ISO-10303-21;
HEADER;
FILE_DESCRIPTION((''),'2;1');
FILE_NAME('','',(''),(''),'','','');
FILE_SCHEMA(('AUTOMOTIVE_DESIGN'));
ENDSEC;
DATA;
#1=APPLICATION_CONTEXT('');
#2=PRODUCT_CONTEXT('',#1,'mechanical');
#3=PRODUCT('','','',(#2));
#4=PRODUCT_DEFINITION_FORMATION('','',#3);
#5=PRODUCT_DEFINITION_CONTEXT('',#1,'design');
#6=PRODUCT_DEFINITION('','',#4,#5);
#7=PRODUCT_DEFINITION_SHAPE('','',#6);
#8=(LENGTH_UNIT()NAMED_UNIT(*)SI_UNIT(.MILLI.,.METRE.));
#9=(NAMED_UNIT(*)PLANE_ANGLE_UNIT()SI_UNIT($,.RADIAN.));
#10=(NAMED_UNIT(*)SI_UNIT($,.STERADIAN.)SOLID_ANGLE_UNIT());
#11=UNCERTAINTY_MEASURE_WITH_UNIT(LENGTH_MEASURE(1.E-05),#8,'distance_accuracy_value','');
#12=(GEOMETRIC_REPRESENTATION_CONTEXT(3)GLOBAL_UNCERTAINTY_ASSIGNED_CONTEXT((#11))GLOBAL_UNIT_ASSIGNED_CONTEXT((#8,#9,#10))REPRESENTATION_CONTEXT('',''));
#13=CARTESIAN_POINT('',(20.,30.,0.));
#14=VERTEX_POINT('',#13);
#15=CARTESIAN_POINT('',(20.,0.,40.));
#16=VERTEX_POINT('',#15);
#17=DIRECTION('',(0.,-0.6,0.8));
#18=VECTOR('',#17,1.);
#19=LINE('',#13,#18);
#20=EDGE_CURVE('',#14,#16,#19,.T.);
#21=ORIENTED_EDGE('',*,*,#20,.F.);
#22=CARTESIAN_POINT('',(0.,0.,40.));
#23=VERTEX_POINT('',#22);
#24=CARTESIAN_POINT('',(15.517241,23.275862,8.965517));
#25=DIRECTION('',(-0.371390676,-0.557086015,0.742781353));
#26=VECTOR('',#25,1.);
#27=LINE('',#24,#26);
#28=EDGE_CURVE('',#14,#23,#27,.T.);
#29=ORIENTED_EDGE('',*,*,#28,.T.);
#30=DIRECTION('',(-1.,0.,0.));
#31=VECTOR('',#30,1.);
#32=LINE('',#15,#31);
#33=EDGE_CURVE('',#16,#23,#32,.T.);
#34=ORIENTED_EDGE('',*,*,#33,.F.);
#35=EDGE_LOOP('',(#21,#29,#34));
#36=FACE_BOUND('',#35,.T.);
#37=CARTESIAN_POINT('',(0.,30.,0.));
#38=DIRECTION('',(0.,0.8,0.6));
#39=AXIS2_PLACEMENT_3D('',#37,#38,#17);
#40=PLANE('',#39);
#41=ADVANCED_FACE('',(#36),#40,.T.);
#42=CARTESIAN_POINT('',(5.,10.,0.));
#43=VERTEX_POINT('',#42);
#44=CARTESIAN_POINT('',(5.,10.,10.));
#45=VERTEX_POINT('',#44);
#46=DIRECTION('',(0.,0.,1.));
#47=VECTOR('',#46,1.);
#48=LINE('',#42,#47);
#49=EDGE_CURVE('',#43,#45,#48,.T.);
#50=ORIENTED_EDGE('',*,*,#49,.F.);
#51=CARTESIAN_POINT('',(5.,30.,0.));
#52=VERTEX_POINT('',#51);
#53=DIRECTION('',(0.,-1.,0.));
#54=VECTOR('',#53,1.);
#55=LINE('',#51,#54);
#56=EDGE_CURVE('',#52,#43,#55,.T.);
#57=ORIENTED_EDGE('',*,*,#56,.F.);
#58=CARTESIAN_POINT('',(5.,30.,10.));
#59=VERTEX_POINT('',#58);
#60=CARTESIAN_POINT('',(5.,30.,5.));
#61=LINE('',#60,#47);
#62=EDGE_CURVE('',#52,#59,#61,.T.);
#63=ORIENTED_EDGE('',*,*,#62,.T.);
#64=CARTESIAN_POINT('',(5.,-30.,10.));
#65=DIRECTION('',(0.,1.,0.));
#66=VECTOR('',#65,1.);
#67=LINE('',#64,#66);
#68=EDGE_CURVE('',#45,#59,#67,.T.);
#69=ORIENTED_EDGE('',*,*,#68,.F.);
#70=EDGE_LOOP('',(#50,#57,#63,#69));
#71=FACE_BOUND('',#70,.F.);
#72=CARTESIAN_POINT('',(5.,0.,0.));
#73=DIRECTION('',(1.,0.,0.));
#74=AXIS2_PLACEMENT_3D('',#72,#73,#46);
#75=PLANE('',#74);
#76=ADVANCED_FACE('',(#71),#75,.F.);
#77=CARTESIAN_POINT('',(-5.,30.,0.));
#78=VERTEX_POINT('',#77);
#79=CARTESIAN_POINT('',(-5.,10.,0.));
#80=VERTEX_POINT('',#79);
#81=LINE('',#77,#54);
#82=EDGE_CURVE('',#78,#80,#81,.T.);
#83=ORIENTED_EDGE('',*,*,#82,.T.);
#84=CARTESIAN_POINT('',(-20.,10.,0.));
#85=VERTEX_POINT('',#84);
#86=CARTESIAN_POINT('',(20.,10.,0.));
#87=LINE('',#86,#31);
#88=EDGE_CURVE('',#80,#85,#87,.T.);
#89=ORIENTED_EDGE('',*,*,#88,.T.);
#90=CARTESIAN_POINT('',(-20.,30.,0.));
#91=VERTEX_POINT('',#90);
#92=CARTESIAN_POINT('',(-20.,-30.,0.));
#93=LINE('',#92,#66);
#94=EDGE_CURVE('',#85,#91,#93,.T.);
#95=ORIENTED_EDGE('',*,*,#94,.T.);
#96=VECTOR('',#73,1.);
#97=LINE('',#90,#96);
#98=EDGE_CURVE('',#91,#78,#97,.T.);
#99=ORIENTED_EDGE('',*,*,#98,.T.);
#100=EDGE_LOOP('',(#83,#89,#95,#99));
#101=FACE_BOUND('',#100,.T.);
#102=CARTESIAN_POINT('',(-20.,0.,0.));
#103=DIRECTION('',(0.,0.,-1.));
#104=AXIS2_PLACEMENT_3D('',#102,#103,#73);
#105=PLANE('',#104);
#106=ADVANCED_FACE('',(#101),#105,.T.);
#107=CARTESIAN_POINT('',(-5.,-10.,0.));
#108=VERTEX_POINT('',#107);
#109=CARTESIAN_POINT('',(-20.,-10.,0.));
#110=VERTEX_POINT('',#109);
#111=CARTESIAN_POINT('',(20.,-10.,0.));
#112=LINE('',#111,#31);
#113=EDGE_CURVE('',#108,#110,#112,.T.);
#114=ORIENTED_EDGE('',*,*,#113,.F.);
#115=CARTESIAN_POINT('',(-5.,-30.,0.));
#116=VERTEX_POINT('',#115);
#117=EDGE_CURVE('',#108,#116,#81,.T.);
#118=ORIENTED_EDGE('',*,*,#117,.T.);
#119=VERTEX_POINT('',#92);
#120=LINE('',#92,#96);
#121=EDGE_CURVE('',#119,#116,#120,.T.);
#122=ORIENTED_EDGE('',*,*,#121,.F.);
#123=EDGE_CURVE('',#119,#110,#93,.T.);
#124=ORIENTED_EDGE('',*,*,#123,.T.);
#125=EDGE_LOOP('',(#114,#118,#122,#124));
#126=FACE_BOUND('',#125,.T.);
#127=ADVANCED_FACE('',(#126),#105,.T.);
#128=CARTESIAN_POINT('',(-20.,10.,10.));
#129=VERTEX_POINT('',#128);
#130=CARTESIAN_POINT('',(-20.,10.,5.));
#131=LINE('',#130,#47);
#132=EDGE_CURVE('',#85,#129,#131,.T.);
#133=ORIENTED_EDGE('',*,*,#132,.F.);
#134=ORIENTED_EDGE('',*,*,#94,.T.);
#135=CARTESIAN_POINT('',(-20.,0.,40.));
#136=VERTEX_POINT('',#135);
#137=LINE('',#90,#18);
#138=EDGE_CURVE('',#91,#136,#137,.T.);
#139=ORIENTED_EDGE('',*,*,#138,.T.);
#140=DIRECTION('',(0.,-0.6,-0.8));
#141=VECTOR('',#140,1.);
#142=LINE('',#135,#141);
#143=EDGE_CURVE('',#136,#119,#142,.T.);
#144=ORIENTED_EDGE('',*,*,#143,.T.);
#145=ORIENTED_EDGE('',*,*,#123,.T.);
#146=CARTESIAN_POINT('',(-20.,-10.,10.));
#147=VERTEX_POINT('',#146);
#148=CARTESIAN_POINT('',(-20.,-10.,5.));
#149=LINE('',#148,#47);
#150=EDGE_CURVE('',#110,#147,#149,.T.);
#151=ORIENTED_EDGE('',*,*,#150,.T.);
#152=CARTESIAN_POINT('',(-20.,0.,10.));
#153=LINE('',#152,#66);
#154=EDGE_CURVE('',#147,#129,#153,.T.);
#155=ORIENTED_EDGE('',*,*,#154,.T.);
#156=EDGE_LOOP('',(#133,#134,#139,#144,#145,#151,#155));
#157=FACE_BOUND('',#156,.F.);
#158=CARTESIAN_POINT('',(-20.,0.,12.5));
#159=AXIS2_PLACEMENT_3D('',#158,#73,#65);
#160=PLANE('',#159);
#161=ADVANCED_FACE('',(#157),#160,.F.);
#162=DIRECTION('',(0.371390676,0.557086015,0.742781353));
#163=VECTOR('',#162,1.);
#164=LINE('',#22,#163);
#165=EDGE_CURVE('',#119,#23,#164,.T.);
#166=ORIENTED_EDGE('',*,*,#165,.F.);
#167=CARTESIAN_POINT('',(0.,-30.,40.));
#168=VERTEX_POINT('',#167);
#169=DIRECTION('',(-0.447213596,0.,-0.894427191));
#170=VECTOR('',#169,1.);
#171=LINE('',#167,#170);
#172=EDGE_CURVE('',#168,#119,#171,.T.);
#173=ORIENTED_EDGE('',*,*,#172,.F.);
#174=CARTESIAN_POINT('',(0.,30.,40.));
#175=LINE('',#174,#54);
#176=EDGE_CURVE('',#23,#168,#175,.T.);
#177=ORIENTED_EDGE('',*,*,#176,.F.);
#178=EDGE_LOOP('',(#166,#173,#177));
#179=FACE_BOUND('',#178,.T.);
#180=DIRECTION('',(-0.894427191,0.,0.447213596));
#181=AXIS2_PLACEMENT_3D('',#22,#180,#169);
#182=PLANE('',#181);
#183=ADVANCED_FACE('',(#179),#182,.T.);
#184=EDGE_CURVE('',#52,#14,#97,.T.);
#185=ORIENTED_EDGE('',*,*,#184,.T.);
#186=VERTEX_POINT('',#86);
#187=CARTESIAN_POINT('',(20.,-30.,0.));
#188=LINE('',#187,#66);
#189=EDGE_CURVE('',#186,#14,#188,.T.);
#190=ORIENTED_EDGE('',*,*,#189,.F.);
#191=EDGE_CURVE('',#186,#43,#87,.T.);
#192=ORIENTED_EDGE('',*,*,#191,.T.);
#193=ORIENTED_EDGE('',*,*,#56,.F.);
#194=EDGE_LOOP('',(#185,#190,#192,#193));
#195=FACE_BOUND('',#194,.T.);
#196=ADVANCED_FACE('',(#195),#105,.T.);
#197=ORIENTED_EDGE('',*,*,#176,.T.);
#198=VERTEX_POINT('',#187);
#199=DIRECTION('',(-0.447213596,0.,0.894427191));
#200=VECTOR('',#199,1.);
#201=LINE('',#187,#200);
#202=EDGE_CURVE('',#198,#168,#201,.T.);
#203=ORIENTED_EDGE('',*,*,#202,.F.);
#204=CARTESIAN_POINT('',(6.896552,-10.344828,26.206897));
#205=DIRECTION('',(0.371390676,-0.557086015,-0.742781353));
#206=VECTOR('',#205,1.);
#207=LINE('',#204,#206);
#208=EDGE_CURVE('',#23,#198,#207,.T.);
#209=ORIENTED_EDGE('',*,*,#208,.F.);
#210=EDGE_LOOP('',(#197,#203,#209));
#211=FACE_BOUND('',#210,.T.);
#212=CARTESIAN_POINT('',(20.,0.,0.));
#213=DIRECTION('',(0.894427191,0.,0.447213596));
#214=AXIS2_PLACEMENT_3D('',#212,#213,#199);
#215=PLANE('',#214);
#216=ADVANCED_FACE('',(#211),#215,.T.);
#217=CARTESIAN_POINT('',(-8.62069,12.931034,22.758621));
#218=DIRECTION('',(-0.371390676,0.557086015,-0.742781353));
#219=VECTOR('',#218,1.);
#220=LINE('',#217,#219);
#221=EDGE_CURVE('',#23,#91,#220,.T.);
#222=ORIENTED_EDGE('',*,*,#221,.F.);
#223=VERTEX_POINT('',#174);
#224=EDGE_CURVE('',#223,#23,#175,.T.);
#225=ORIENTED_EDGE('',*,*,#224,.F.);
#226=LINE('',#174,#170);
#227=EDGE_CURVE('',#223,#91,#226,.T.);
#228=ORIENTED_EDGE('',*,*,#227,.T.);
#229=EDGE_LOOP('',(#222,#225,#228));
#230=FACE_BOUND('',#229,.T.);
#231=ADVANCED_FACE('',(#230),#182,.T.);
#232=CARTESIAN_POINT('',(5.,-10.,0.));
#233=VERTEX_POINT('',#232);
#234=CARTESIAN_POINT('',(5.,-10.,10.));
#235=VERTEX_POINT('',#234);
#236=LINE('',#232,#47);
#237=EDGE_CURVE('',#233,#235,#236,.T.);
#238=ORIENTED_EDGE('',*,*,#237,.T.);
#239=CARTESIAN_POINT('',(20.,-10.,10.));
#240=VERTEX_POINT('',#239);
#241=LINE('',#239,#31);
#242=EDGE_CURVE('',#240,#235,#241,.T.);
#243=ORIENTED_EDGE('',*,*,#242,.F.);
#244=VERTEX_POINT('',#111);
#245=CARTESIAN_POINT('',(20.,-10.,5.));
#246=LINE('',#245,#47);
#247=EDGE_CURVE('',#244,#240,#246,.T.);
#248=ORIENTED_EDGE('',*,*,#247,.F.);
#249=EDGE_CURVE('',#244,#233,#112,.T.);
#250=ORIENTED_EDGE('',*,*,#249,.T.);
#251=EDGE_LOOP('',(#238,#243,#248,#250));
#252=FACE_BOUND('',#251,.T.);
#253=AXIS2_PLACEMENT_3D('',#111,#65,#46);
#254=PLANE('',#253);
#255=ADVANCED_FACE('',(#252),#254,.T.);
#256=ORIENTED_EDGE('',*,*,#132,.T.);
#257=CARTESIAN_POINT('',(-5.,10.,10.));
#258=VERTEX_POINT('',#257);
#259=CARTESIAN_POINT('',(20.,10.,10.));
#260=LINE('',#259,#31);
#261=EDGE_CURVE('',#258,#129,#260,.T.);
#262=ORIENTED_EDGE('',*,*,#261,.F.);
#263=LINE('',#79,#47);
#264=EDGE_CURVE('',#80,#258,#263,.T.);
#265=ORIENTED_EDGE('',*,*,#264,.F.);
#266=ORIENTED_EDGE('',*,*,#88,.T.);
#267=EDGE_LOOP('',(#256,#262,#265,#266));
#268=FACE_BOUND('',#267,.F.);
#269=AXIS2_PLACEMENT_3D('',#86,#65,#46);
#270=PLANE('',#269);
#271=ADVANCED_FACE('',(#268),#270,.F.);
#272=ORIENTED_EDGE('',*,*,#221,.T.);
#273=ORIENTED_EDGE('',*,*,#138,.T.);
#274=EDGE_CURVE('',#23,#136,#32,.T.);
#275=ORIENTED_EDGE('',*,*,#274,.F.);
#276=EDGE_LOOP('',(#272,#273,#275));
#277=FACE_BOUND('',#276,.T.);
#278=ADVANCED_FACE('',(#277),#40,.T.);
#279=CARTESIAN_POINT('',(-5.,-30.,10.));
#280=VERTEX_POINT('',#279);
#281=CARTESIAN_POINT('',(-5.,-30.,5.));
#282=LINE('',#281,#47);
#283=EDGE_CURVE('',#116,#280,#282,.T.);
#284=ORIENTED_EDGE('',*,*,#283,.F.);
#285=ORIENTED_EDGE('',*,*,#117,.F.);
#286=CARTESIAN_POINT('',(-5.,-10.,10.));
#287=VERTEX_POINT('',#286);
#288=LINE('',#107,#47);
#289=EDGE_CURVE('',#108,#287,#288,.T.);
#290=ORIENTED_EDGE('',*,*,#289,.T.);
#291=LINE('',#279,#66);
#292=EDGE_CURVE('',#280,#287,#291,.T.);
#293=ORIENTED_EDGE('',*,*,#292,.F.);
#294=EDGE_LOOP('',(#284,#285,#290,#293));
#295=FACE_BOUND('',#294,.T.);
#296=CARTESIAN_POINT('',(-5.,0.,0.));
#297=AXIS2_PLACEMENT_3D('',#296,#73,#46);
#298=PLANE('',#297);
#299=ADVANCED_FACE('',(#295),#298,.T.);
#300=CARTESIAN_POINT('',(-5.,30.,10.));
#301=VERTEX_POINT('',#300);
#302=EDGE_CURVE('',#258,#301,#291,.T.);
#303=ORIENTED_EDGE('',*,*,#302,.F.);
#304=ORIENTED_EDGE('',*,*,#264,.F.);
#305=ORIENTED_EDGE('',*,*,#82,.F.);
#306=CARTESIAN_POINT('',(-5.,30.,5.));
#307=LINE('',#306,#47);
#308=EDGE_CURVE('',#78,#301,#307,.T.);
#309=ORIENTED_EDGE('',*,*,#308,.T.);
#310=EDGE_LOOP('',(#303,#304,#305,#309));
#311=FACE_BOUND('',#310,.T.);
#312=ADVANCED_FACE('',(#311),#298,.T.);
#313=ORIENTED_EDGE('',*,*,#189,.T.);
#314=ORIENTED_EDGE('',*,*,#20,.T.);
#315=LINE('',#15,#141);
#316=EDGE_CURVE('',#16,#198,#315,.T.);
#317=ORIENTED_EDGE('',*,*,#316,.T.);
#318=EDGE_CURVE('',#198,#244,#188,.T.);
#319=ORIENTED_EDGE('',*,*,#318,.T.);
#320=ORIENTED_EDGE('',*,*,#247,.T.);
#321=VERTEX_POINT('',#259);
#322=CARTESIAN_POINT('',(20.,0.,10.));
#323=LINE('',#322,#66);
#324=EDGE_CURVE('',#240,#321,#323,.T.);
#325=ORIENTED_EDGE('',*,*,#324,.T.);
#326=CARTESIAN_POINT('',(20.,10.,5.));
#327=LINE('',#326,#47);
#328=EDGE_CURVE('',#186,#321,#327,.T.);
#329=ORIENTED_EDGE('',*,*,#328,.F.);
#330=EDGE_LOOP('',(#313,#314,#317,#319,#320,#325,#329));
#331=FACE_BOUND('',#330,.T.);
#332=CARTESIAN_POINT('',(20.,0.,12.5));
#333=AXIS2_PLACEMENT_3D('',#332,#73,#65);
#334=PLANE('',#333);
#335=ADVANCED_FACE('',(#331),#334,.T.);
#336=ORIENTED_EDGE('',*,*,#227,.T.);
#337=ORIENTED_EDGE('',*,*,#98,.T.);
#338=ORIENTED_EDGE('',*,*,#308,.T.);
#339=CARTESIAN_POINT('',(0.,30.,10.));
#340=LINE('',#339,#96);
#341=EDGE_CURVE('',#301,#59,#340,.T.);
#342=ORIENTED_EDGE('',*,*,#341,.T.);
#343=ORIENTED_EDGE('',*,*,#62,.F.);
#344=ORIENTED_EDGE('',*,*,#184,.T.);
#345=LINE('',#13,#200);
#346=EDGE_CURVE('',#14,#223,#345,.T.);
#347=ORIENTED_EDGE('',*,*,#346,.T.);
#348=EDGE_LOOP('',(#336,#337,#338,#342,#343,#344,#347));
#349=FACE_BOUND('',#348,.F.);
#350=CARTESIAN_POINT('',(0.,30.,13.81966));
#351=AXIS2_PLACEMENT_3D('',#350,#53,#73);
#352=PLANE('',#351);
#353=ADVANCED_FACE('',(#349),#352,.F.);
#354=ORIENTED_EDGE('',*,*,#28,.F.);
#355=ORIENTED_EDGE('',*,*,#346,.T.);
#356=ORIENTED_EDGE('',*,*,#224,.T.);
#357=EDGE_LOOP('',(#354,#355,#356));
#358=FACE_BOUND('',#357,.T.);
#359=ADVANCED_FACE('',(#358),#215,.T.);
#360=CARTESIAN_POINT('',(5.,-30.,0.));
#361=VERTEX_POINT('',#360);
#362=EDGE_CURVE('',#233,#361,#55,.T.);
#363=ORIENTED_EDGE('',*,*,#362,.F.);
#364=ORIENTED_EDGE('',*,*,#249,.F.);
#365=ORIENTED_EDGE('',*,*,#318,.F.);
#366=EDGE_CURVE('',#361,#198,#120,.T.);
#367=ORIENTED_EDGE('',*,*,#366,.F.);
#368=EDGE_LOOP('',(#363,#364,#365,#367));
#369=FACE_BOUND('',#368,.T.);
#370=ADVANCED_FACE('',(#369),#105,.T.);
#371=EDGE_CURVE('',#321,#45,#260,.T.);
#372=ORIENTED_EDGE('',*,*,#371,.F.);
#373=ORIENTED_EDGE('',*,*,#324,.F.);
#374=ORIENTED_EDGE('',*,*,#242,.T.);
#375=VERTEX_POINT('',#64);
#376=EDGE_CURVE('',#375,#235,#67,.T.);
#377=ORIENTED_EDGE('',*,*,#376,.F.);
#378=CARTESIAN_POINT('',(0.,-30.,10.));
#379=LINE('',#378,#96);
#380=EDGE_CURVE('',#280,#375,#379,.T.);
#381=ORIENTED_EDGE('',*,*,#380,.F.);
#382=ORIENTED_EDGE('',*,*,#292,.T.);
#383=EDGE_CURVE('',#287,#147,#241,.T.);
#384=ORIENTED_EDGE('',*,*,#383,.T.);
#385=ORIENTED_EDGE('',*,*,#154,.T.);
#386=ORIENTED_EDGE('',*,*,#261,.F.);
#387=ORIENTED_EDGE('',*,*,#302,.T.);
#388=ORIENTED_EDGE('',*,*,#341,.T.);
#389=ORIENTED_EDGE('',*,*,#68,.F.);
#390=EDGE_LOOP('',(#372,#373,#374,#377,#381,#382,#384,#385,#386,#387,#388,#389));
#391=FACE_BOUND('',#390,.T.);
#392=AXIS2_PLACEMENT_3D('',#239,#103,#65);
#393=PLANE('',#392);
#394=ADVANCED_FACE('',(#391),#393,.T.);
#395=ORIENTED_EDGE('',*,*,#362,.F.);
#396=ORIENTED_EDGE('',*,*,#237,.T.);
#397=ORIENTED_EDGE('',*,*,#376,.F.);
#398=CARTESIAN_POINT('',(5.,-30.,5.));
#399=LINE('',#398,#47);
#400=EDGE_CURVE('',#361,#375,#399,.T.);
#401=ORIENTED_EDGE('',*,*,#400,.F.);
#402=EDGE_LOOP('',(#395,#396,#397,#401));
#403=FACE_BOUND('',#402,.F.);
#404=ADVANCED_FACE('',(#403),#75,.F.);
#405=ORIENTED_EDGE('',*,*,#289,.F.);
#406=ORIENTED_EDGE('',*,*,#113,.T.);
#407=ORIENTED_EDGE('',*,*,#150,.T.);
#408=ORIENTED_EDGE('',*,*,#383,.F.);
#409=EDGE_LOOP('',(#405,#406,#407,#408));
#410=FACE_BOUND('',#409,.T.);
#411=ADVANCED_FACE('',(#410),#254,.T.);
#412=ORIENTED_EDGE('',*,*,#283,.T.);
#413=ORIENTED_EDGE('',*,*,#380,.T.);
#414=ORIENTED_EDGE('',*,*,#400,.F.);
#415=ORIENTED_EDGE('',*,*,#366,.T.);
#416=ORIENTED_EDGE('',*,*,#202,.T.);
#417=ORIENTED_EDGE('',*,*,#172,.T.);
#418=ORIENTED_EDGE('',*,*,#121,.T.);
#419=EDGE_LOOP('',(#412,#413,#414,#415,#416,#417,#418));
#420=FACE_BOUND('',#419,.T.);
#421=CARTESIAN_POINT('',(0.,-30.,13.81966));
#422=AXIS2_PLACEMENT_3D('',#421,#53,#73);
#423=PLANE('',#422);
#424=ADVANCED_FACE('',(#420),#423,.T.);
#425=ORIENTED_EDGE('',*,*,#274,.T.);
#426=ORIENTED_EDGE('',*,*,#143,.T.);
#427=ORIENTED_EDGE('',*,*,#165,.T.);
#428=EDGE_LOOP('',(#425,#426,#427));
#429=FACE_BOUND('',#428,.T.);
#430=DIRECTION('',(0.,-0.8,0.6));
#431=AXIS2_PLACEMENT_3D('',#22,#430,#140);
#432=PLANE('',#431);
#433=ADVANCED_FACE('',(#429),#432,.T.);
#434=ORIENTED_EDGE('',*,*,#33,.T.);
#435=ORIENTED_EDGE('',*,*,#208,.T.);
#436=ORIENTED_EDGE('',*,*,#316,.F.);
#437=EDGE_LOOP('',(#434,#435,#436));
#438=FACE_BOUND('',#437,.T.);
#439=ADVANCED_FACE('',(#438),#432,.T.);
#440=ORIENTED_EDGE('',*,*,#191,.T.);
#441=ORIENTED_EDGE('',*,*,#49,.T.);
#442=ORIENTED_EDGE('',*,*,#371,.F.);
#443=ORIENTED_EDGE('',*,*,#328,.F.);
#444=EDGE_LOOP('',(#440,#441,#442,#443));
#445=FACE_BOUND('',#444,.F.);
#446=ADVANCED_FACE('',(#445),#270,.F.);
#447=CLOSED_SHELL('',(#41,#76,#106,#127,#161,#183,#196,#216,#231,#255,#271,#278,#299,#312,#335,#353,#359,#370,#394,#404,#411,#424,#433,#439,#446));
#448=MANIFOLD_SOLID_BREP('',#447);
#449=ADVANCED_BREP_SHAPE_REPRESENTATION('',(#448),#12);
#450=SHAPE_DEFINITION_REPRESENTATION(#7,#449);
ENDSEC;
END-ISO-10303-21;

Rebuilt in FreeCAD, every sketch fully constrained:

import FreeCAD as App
import Part
import Sketcher
from FreeCAD import Vector

doc = App.newDocument("Part")
params = doc.addObject("Spreadsheet::Sheet", "Params")
for row, (alias, value) in enumerate([
    ("sketch1_width", "40 mm"),
    ("pad1_length", "60 mm"),
    ("sketch2_width", "60 mm"),
    ("sketch2_length", "50 mm"),
    ("pad2_length", "40 mm"),
    ("sketch3_width", "10 mm"),
    ("pocket1_length", "60 mm"),
    ("sketch4_width", "20 mm"),
    ("sketch4_height", "10 mm"),
    ("pocket2_length", "40 mm"),
], start=1):
    params.set(f"A{row}", alias)
    params.set(f"B{row}", "=" + value)
    params.setAlias(f"B{row}", alias)

body = doc.addObject("PartDesign::Body", "Body")

sketch1 = body.newObject("Sketcher::SketchObject", "Sketch")
sketch1.AttachmentSupport = (doc.getObject("XZ_Plane"), [""])
sketch1.MapMode = "FlatFace"
sketch1.addGeometry([
    Part.LineSegment(Vector(20, 0, 0), Vector(0, 40, 0)),
    Part.LineSegment(Vector(0, 40, 0), Vector(-20, 0, 0)),
    Part.LineSegment(Vector(-20, 0, 0), Vector(20, 0, 0)),
], False)
sketch1.addConstraint([
    Sketcher.Constraint("Coincident", 0, 2, 1, 1),
    Sketcher.Constraint("Coincident", 1, 2, 2, 1),
    Sketcher.Constraint("Coincident", 2, 2, 0, 1),
    Sketcher.Constraint("Horizontal", 2),
    Sketcher.Constraint("Symmetric", 1, 2, 2, 2, -1, 1),
    Sketcher.Constraint("PointOnObject", 0, 2, -2),
    Sketcher.Constraint("DistanceX", 2, 1, 2, 2, 40.0),
    Sketcher.Constraint("DistanceY", -1, 1, 0, 2, 40.0),
])
sketch1.setExpression("Constraints[6]", "Params.sketch1_width")
pad1 = body.newObject("PartDesign::Pad", "Pad")
pad1.Profile = sketch1
pad1.setExpression("Length", "Params.pad1_length")
pad1.Midplane = True

sketch2 = body.newObject("Sketcher::SketchObject", "Sketch001")
sketch2.AttachmentSupport = (doc.getObject("YZ_Plane"), [""])
sketch2.MapMode = "FlatFace"
sketch2.addGeometry([
    Part.LineSegment(Vector(0, 40, 0), Vector(-30, 0, 0)),
    Part.LineSegment(Vector(-30, 0, 0), Vector(30, 0, 0)),
    Part.LineSegment(Vector(30, 0, 0), Vector(0, 40, 0)),
], False)
sketch2.addConstraint([
    Sketcher.Constraint("Coincident", 0, 2, 1, 1),
    Sketcher.Constraint("Coincident", 1, 2, 2, 1),
    Sketcher.Constraint("Coincident", 2, 2, 0, 1),
    Sketcher.Constraint("Horizontal", 1),
    Sketcher.Constraint("Symmetric", 0, 2, 1, 2, -1, 1),
    Sketcher.Constraint("PointOnObject", 2, 2, -2),
    Sketcher.Constraint("DistanceX", 1, 1, 1, 2, 60.0),
    Sketcher.Constraint("Distance", 0, 50.0),
])
sketch2.setExpression("Constraints[6]", "Params.sketch2_width")
sketch2.setExpression("Constraints[7]", "Params.sketch2_length")
pad2 = body.newObject("PartDesign::Pad", "Pad001")
pad2.Profile = sketch2
pad2.setExpression("Length", "Params.pad2_length")
pad2.Midplane = True

sketch3 = body.newObject("Sketcher::SketchObject", "Sketch002")
sketch3.AttachmentSupport = (doc.getObject("XZ_Plane"), [""])
sketch3.MapMode = "FlatFace"
sketch3.addGeometry([
    Part.LineSegment(Vector(-5, 10, 0), Vector(-5, 0, 0)),
    Part.LineSegment(Vector(-5, 0, 0), Vector(5, 0, 0)),
    Part.LineSegment(Vector(5, 0, 0), Vector(5, 10, 0)),
    Part.LineSegment(Vector(5, 10, 0), Vector(-5, 10, 0)),
], False)
sketch3.addConstraint([
    Sketcher.Constraint("Coincident", 0, 2, 1, 1),
    Sketcher.Constraint("Coincident", 1, 2, 2, 1),
    Sketcher.Constraint("Coincident", 2, 2, 3, 1),
    Sketcher.Constraint("Coincident", 3, 2, 0, 1),
    Sketcher.Constraint("Vertical", 0),
    Sketcher.Constraint("Horizontal", 1),
    Sketcher.Constraint("Vertical", 2),
    Sketcher.Constraint("Horizontal", 3),
    Sketcher.Constraint("Symmetric", 0, 2, 1, 2, -1, 1),
    Sketcher.Constraint("Equal", 3, 0),
    Sketcher.Constraint("DistanceX", 1, 1, 1, 2, 10.0),
])
sketch3.setExpression("Constraints[10]", "Params.sketch3_width")
pocket1 = body.newObject("PartDesign::Pocket", "Pocket")
pocket1.Profile = sketch3
pocket1.setExpression("Length", "Params.pocket1_length")
pocket1.Midplane = True

sketch4 = body.newObject("Sketcher::SketchObject", "Sketch003")
sketch4.AttachmentSupport = (doc.getObject("YZ_Plane"), [""])
sketch4.MapMode = "FlatFace"
sketch4.AttachmentOffset = App.Placement(Vector(0, 0, 20), App.Rotation())
sketch4.addGeometry([
    Part.LineSegment(Vector(-10, 10, 0), Vector(-10, 0, 0)),
    Part.LineSegment(Vector(-10, 0, 0), Vector(10, 0, 0)),
    Part.LineSegment(Vector(10, 0, 0), Vector(10, 10, 0)),
    Part.LineSegment(Vector(10, 10, 0), Vector(-10, 10, 0)),
], False)
sketch4.addConstraint([
    Sketcher.Constraint("Coincident", 0, 2, 1, 1),
    Sketcher.Constraint("Coincident", 1, 2, 2, 1),
    Sketcher.Constraint("Coincident", 2, 2, 3, 1),
    Sketcher.Constraint("Coincident", 3, 2, 0, 1),
    Sketcher.Constraint("Vertical", 0),
    Sketcher.Constraint("Horizontal", 1),
    Sketcher.Constraint("Vertical", 2),
    Sketcher.Constraint("Horizontal", 3),
    Sketcher.Constraint("Symmetric", 0, 2, 1, 2, -1, 1),
    Sketcher.Constraint("DistanceX", 1, 1, 1, 2, 20.0),
    Sketcher.Constraint("DistanceY", 0, 2, 0, 1, 10.0),
])
sketch4.setExpression("Constraints[9]", "Params.sketch4_width")
sketch4.setExpression("Constraints[10]", "Params.sketch4_height")
pocket2 = body.newObject("PartDesign::Pocket", "Pocket001")
pocket2.Profile = sketch4
pocket2.setExpression("Length", "Params.pocket2_length")

doc.recompute()
